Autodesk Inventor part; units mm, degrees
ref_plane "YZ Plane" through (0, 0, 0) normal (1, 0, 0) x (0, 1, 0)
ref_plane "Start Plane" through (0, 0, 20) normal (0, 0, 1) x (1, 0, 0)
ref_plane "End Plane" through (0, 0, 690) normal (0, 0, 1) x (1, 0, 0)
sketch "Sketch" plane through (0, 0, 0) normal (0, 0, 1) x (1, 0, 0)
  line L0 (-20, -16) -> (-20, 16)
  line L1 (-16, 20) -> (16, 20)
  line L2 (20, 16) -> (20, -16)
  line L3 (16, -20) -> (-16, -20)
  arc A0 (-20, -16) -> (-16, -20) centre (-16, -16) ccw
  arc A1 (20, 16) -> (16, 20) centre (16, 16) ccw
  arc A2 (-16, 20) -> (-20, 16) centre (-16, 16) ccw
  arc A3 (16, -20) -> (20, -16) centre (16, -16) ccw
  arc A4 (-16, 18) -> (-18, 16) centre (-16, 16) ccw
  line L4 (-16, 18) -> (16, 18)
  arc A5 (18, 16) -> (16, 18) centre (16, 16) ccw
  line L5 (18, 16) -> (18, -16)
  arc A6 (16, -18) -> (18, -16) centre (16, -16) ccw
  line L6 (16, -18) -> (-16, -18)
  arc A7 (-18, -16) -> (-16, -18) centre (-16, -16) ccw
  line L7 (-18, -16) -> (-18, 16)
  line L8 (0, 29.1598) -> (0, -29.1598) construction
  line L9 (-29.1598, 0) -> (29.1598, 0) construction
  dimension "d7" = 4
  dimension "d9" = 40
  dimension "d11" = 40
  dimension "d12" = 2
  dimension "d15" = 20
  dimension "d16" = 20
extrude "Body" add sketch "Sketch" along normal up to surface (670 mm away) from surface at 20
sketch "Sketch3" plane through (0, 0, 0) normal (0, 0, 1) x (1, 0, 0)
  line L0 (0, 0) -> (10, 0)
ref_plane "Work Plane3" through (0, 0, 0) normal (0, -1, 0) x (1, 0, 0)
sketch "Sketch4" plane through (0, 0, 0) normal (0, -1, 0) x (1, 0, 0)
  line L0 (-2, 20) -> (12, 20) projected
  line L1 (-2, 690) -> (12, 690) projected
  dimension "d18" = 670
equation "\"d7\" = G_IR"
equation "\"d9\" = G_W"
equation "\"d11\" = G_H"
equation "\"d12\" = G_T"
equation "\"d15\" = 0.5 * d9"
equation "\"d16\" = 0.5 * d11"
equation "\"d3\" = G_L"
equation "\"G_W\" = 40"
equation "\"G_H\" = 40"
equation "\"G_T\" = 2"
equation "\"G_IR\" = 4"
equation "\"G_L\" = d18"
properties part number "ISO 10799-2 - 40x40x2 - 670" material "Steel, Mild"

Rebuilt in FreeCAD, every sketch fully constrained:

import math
import FreeCAD as App
import Part
import Sketcher
from FreeCAD import Vector

doc = App.newDocument("Part")
body = doc.addObject("PartDesign::Body", "Body")

# Sketch on XY plane
sketch1 = body.newObject("Sketcher::SketchObject", "Sketch")
sketch1.AttachmentSupport = (doc.getObject("XY_Plane"), [""])
sketch1.MapMode = "FlatFace"
sketch1.AttachmentOffset = App.Placement(Vector(0, 0, 20), App.Rotation())
sketch1.addGeometry([
    Part.LineSegment(Vector(-20, 16, 0), Vector(-20, -16, 0)),  # 0
    Part.ArcOfCircle(Part.Circle(Vector(-16, -16, 0), Vector(0, 0, 1), 4), math.radians(180), math.radians(270)),  # 1
    Part.LineSegment(Vector(-16, -20, 0), Vector(16, -20, 0)),  # 2
    Part.ArcOfCircle(Part.Circle(Vector(16, -16, 0), Vector(0, 0, 1), 4), math.radians(-90), math.radians(0)),  # 3
    Part.LineSegment(Vector(20, -16, 0), Vector(20, 16, 0)),  # 4
    Part.ArcOfCircle(Part.Circle(Vector(16, 16, 0), Vector(0, 0, 1), 4), math.radians(0), math.radians(90)),  # 5
    Part.LineSegment(Vector(16, 20, 0), Vector(-16, 20, 0)),  # 6
    Part.ArcOfCircle(Part.Circle(Vector(-16, 16, 0), Vector(0, 0, 1), 4), math.radians(90), math.radians(180)),  # 7
    Part.ArcOfCircle(Part.Circle(Vector(-16, 16, 0), Vector(0, 0, 1), 2), math.radians(90), math.radians(180)),  # 8
    Part.LineSegment(Vector(-16, 18, 0), Vector(16, 18, 0)),  # 9
    Part.ArcOfCircle(Part.Circle(Vector(16, 16, 0), Vector(0, 0, 1), 2), math.radians(0), math.radians(90)),  # 10
    Part.LineSegment(Vector(18, 16, 0), Vector(18, -16, 0)),  # 11
    Part.ArcOfCircle(Part.Circle(Vector(16, -16, 0), Vector(0, 0, 1), 2), math.radians(-90), math.radians(0)),  # 12
    Part.LineSegment(Vector(16, -18, 0), Vector(-16, -18, 0)),  # 13
    Part.ArcOfCircle(Part.Circle(Vector(-16, -16, 0), Vector(0, 0, 1), 2), math.radians(180), math.radians(270)),  # 14
    Part.LineSegment(Vector(-18, -16, 0), Vector(-18, 16, 0)),  # 15
], False)
sketch1.addConstraint([
    Sketcher.Constraint("Tangent", 0, 2, 1, 1),
    Sketcher.Constraint("Tangent", 1, 2, 2, 1),
    Sketcher.Constraint("Tangent", 2, 2, 3, 1),
    Sketcher.Constraint("Tangent", 3, 2, 4, 1),
    Sketcher.Constraint("Tangent", 4, 2, 5, 1),
    Sketcher.Constraint("Tangent", 5, 2, 6, 1),
    Sketcher.Constraint("Tangent", 6, 2, 7, 1),
    Sketcher.Constraint("Tangent", 7, 2, 0, 1),
    Sketcher.Constraint("Tangent", 8, 1, 9, 1),
    Sketcher.Constraint("Tangent", 9, 2, 10, 2),
    Sketcher.Constraint("Tangent", 10, 1, 11, 1),
    Sketcher.Constraint("Tangent", 11, 2, 12, 2),
    Sketcher.Constraint("Tangent", 12, 1, 13, 1),
    Sketcher.Constraint("Tangent", 13, 2, 14, 2),
    Sketcher.Constraint("Tangent", 14, 1, 15, 1),
    Sketcher.Constraint("Tangent", 15, 2, 8, 2),
    Sketcher.Constraint("Vertical", 0),
    Sketcher.Constraint("Horizontal", 2),
    Sketcher.Constraint("Vertical", 4),
    Sketcher.Constraint("Horizontal", 6),
    Sketcher.Constraint("Horizontal", 9),
    Sketcher.Constraint("Vertical", 11),
    Sketcher.Constraint("Horizontal", 13),
    Sketcher.Constraint("Vertical", 15),
    Sketcher.Constraint("Coincident", 8, 3, 7, 3),
    Sketcher.Constraint("Coincident", 10, 3, 5, 3),
    Sketcher.Constraint("Coincident", 12, 3, 3, 3),
    Sketcher.Constraint("Equal", 1, 3),
    Sketcher.Constraint("Equal", 3, 5),
    Sketcher.Constraint("Equal", 5, 7),
    Sketcher.Constraint("Equal", 12, 14),
    Sketcher.Constraint("Symmetric", 1, 3, 5, 3, -1, 1),
    Sketcher.Constraint("Equal", 13, 0),
    Sketcher.Constraint("Radius", 1, 4.0),
    Sketcher.Constraint("Radius", 8, 2.0),
    Sketcher.Constraint("DistanceX", 0, 2, -1, 1, 20.0),
])
pad1 = body.newObject("PartDesign::Pad", "Pad")
pad1.Profile = sketch1
pad1.Length = 670

doc.recompute()
